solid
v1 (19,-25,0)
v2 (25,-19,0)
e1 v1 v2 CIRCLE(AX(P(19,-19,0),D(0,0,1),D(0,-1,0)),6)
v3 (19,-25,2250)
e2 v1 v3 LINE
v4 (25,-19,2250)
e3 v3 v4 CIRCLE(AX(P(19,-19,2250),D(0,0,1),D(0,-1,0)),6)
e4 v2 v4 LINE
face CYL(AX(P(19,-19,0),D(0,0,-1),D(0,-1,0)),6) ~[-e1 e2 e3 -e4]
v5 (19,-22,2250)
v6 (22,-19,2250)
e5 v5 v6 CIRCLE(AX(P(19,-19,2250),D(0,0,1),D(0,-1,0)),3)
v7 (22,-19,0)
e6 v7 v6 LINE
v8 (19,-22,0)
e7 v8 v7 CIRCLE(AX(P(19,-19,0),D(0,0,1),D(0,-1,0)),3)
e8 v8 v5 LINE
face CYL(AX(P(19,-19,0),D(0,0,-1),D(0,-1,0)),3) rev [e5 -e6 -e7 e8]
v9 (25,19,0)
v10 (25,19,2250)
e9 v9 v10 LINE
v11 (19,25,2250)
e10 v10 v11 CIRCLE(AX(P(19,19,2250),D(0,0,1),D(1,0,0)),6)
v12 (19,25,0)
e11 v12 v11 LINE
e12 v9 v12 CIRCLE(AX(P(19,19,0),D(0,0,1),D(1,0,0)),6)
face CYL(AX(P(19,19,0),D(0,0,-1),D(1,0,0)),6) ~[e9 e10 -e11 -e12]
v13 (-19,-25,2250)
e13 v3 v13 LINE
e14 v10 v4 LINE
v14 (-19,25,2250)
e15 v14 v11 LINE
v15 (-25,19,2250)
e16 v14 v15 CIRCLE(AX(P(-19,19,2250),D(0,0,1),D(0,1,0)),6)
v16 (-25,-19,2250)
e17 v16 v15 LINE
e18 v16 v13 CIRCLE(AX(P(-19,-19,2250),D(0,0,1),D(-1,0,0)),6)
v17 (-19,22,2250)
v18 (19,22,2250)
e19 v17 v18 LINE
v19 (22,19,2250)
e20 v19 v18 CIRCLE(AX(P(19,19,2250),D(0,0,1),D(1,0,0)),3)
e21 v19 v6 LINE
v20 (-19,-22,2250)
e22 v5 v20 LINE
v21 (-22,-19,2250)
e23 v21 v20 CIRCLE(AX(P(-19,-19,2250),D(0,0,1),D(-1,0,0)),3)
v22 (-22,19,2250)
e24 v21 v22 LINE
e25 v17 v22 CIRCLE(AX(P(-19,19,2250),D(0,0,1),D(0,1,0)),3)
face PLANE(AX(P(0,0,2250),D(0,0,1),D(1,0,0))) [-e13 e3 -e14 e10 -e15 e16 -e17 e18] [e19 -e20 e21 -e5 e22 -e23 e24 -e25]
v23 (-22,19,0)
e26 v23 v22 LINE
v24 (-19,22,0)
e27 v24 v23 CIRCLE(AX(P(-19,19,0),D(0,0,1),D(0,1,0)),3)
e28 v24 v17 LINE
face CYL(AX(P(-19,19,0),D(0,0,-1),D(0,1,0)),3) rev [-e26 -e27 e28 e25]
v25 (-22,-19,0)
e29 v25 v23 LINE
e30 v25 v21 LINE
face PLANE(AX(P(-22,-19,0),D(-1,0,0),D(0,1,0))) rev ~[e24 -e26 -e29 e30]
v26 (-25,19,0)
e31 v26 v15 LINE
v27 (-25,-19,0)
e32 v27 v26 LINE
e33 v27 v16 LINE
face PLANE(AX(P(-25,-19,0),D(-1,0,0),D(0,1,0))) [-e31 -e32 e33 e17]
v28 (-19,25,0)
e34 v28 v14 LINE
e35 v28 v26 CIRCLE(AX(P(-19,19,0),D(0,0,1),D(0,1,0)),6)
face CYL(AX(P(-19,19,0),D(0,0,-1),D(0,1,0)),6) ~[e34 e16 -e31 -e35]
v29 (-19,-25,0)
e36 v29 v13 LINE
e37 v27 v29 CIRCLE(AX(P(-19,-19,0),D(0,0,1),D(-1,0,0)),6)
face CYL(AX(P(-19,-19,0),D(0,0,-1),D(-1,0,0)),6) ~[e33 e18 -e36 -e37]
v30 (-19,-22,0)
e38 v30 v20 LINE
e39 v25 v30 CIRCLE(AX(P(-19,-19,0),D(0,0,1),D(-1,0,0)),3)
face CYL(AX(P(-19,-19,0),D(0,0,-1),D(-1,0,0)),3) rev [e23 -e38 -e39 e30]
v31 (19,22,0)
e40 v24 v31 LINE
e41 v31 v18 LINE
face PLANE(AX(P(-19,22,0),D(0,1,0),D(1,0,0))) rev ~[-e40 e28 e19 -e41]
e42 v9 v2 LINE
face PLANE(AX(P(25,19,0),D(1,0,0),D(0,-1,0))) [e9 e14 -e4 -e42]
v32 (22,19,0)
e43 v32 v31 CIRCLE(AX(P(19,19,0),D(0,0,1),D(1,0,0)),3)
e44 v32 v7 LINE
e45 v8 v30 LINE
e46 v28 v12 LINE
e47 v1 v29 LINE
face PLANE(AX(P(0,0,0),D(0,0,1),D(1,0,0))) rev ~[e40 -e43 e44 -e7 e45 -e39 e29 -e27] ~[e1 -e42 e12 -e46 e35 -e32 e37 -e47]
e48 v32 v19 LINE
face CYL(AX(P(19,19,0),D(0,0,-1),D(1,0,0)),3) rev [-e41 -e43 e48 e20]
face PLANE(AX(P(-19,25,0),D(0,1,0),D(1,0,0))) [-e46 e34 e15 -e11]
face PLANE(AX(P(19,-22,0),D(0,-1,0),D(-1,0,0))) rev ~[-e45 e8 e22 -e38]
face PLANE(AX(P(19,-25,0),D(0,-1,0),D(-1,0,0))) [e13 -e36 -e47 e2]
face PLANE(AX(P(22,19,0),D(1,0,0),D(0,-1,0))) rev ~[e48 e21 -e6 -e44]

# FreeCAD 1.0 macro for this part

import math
import FreeCAD as App
import Part
import Sketcher
from FreeCAD import Vector
Q = App.Units.Quantity

doc = App.newDocument("Part")
body = doc.addObject("PartDesign::Body", "Body")

# Sketch on XY plane
sketch1 = body.newObject("Sketcher::SketchObject", "Sketch")
sketch1.AttachmentSupport = (doc.getObject("XY_Plane"), [""])
sketch1.MapMode = "FlatFace"
sketch1.addGeometry(Part.LineSegment(Vector(-25, 19, 0), Vector(-25, -19, 0)), False)
sketch1.addGeometry(Part.ArcOfCircle(Part.Circle(Vector(-19, -19, 0), Vector(0, 0, 1), 6), math.radians(180), math.radians(270)), False)
sketch1.addGeometry(Part.LineSegment(Vector(-19, -25, 0), Vector(19, -25, 0)), False)
sketch1.addGeometry(Part.ArcOfCircle(Part.Circle(Vector(19, -19, 0), Vector(0, 0, 1), 6), math.radians(-90), math.radians(0)), False)
sketch1.addGeometry(Part.LineSegment(Vector(25, -19, 0), Vector(25, 19, 0)), False)
sketch1.addGeometry(Part.ArcOfCircle(Part.Circle(Vector(19, 19, 0), Vector(0, 0, 1), 6), math.radians(0), math.radians(90)), False)
sketch1.addGeometry(Part.LineSegment(Vector(19, 25, 0), Vector(-19, 25, 0)), False)
sketch1.addGeometry(Part.ArcOfCircle(Part.Circle(Vector(-19, 19, 0), Vector(0, 0, 1), 6), math.radians(90), math.radians(180)), False)
sketch1.addGeometry(Part.ArcOfCircle(Part.Circle(Vector(-19, 19, 0), Vector(0, 0, 1), 3), math.radians(90), math.radians(180)), False)
sketch1.addGeometry(Part.LineSegment(Vector(-19, 22, 0), Vector(19, 22, 0)), False)
sketch1.addGeometry(Part.ArcOfCircle(Part.Circle(Vector(19, 19, 0), Vector(0, 0, 1), 3), math.radians(0), math.radians(90)), False)
sketch1.addGeometry(Part.LineSegment(Vector(22, 19, 0), Vector(22, -19, 0)), False)
sketch1.addGeometry(Part.ArcOfCircle(Part.Circle(Vector(19, -19, 0), Vector(0, 0, 1), 3), math.radians(-90), math.radians(0)), False)
sketch1.addGeometry(Part.LineSegment(Vector(19, -22, 0), Vector(-19, -22, 0)), False)
sketch1.addGeometry(Part.ArcOfCircle(Part.Circle(Vector(-19, -19, 0), Vector(0, 0, 1), 3), math.radians(180), math.radians(270)), False)
sketch1.addGeometry(Part.LineSegment(Vector(-22, -19, 0), Vector(-22, 19, 0)), False)
sketch1.addConstraint(Sketcher.Constraint("Tangent", 0, 2, 1, 1))
sketch1.addConstraint(Sketcher.Constraint("Tangent", 1, 2, 2, 1))
sketch1.addConstraint(Sketcher.Constraint("Tangent", 2, 2, 3, 1))
sketch1.addConstraint(Sketcher.Constraint("Tangent", 3, 2, 4, 1))
sketch1.addConstraint(Sketcher.Constraint("Tangent", 4, 2, 5, 1))
sketch1.addConstraint(Sketcher.Constraint("Tangent", 5, 2, 6, 1))
sketch1.addConstraint(Sketcher.Constraint("Tangent", 6, 2, 7, 1))
sketch1.addConstraint(Sketcher.Constraint("Tangent", 7, 2, 0, 1))
sketch1.addConstraint(Sketcher.Constraint("Tangent", 8, 1, 9, 1))
sketch1.addConstraint(Sketcher.Constraint("Tangent", 9, 2, 10, 2))
sketch1.addConstraint(Sketcher.Constraint("Tangent", 10, 1, 11, 1))
sketch1.addConstraint(Sketcher.Constraint("Tangent", 11, 2, 12, 2))
sketch1.addConstraint(Sketcher.Constraint("Tangent", 12, 1, 13, 1))
sketch1.addConstraint(Sketcher.Constraint("Tangent", 13, 2, 14, 2))
sketch1.addConstraint(Sketcher.Constraint("Tangent", 14, 1, 15, 1))
sketch1.addConstraint(Sketcher.Constraint("Tangent", 15, 2, 8, 2))
sketch1.addConstraint(Sketcher.Constraint("Vertical", 0))
sketch1.addConstraint(Sketcher.Constraint("Horizontal", 2))
sketch1.addConstraint(Sketcher.Constraint("Vertical", 4))
sketch1.addConstraint(Sketcher.Constraint("Horizontal", 6))
sketch1.addConstraint(Sketcher.Constraint("Horizontal", 9))
sketch1.addConstraint(Sketcher.Constraint("Vertical", 11))
sketch1.addConstraint(Sketcher.Constraint("Horizontal", 13))
sketch1.addConstraint(Sketcher.Constraint("Vertical", 15))
sketch1.addConstraint(Sketcher.Constraint("Coincident", 8, 3, 7, 3))
sketch1.addConstraint(Sketcher.Constraint("Coincident", 10, 3, 5, 3))
sketch1.addConstraint(Sketcher.Constraint("Coincident", 12, 3, 3, 3))
sketch1.addConstraint(Sketcher.Constraint("Equal", 1, 3))
sketch1.addConstraint(Sketcher.Constraint("Equal", 3, 5))
sketch1.addConstraint(Sketcher.Constraint("Equal", 5, 7))
sketch1.addConstraint(Sketcher.Constraint("Equal", 12, 14))
sketch1.addConstraint(Sketcher.Constraint("Symmetric", 1, 3, 5, 3, -1, 1))
sketch1.addConstraint(Sketcher.Constraint("Equal", 13, 0))
sketch1.addConstraint(Sketcher.Constraint("Radius", 1, Q("6 mm")))
sketch1.addConstraint(Sketcher.Constraint("Radius", 8, Q("3 mm")))
sketch1.addConstraint(Sketcher.Constraint("DistanceX", 0, 2, -1, 1, Q("25 mm")))
pad1 = body.newObject("PartDesign::Pad", "Pad")
pad1.Profile = sketch1
pad1.Length = 2250

doc.recompute()
